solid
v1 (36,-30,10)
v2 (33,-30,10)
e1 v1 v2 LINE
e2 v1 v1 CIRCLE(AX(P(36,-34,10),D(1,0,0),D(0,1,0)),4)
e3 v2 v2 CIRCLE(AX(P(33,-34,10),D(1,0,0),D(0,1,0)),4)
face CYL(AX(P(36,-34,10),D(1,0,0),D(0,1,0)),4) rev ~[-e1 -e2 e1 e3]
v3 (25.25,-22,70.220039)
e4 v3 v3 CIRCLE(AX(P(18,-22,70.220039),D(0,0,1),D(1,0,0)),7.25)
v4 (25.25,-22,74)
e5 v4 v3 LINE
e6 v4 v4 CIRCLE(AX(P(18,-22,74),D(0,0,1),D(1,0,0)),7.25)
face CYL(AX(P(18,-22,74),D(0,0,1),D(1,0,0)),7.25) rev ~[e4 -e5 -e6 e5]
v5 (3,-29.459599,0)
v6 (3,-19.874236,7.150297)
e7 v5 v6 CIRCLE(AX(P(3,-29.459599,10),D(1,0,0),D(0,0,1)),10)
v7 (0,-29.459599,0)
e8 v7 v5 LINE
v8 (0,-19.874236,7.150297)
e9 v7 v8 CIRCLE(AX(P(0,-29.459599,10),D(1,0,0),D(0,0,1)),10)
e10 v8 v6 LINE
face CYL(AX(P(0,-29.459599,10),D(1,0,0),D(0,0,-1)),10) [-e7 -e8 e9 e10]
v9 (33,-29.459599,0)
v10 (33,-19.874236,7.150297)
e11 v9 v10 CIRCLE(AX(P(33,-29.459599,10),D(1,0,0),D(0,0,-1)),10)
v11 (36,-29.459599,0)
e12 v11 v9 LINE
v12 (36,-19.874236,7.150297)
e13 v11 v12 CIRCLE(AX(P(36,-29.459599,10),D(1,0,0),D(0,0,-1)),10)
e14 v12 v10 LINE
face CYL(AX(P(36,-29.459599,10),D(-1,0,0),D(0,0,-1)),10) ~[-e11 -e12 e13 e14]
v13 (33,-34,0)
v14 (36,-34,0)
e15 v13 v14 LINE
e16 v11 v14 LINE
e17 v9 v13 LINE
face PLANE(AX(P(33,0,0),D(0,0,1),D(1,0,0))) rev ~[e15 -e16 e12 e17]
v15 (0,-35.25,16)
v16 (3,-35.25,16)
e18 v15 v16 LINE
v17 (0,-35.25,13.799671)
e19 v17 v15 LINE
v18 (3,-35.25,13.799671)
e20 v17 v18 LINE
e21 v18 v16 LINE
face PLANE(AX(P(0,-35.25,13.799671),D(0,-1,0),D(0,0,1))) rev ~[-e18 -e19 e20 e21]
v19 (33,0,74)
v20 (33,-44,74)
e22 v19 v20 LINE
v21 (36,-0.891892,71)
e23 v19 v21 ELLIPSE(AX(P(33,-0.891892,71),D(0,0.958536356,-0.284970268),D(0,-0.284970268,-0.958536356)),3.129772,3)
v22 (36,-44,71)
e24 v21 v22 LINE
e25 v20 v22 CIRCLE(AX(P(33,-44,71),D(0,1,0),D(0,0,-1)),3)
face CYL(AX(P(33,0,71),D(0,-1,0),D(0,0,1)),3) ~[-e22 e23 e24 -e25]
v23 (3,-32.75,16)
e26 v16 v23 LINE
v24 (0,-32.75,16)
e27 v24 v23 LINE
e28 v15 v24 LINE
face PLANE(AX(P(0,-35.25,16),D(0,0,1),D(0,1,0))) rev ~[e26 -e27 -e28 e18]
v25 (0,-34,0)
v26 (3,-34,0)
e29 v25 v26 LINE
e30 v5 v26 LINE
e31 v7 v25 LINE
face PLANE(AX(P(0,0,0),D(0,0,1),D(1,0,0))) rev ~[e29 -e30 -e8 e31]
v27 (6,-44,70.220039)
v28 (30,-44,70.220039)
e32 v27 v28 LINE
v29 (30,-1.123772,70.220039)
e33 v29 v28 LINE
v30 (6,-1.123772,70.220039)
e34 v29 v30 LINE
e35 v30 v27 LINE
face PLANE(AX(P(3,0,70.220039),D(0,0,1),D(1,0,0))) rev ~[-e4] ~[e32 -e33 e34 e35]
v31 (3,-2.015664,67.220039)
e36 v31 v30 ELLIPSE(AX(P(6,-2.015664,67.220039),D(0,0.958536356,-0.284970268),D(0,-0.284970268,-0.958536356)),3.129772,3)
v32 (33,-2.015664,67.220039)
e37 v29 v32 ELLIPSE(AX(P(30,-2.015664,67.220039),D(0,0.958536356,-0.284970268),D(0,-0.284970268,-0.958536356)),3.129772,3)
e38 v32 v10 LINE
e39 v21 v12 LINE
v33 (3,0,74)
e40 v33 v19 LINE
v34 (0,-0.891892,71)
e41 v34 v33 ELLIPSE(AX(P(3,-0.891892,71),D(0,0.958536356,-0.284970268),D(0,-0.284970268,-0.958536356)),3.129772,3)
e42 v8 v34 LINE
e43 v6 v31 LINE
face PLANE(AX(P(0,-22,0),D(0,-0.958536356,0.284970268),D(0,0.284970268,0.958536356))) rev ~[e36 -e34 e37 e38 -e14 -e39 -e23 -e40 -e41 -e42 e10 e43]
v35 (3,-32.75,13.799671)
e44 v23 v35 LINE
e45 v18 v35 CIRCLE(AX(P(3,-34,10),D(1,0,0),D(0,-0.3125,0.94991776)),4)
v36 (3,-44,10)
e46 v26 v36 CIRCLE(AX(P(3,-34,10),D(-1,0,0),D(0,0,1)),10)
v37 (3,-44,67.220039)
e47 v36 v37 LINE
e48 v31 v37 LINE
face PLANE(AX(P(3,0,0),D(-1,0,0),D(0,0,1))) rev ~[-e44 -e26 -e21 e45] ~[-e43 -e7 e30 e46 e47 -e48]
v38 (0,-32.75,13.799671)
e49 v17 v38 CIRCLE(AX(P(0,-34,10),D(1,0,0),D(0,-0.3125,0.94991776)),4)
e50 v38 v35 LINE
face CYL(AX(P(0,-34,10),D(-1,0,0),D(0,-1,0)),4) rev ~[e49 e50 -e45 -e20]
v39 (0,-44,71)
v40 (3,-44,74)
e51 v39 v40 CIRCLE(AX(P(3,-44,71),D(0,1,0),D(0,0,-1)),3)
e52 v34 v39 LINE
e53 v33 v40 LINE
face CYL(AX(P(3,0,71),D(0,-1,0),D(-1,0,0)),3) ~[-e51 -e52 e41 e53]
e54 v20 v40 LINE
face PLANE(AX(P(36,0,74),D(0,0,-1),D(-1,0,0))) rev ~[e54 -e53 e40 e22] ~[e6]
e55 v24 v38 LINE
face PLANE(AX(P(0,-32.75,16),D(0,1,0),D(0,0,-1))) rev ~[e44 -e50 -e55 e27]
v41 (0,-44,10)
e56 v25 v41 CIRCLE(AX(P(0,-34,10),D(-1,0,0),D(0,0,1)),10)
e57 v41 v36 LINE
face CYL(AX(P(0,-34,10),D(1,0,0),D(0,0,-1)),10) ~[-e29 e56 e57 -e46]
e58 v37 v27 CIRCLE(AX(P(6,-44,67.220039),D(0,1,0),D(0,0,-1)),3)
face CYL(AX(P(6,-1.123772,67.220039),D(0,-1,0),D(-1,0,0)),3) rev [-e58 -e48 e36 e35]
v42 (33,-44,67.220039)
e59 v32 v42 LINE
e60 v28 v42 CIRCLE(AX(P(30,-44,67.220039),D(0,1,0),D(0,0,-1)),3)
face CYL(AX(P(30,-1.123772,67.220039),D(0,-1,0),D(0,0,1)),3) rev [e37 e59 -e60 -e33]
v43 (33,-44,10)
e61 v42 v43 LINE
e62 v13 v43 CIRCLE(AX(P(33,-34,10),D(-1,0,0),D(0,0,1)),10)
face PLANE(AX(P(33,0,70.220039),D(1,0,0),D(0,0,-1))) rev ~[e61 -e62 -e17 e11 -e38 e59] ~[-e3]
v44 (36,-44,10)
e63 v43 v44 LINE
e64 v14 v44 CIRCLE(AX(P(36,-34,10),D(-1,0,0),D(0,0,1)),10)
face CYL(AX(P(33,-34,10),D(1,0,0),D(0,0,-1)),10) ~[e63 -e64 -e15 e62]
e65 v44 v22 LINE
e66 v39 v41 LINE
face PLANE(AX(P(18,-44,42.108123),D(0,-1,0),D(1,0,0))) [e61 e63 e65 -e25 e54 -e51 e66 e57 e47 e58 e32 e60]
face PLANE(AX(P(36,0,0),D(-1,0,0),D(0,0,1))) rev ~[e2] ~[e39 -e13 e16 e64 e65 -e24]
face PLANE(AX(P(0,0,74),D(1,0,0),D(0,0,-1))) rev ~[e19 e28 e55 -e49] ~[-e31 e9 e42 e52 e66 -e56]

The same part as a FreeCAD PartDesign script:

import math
import FreeCAD as App
import Part
import Sketcher

V = App.Vector
Q = App.Units.Quantity


def edges_at(feature, points):
    """Names of the edges that pass closest to the given points."""
    edges = feature.Shape.Edges
    near = lambda p: min(range(len(edges)), key=lambda i: edges[i].distToShape(Part.Vertex(*p))[0])
    return sorted({f"Edge{near(p) + 1}" for p in points})

doc = App.newDocument("Part")
body = doc.addObject("PartDesign::Body", "Body")

# Sketch on XZ plane
sketch1 = body.newObject("Sketcher::SketchObject", "Sketch")
sketch1.AttachmentSupport = (doc.getObject("XZ_Plane"), [""])
sketch1.MapMode = "FlatFace"
sketch1.addGeometry(Part.LineSegment(V(0, 74, 0), V(0, 0, 0)), False)
sketch1.addGeometry(Part.LineSegment(V(0, 0, 0), V(3, 0, 0)), False)
sketch1.addGeometry(Part.LineSegment(V(3, 0, 0), V(3, 70.2, 0)), False)
sketch1.addGeometry(Part.LineSegment(V(3, 70.2, 0), V(33, 70.2, 0)), False)
sketch1.addGeometry(Part.LineSegment(V(33, 70.2, 0), V(33, 0, 0)), False)
sketch1.addGeometry(Part.LineSegment(V(33, 0, 0), V(36, 0, 0)), False)
sketch1.addGeometry(Part.LineSegment(V(36, 0, 0), V(36, 74, 0)), False)
sketch1.addGeometry(Part.LineSegment(V(36, 74, 0), V(0, 74, 0)), False)
sketch1.addConstraint(Sketcher.Constraint("Coincident", 0, 2, 1, 1))
sketch1.addConstraint(Sketcher.Constraint("Coincident", 1, 2, 2, 1))
sketch1.addConstraint(Sketcher.Constraint("Coincident", 2, 2, 3, 1))
sketch1.addConstraint(Sketcher.Constraint("Coincident", 3, 2, 4, 1))
sketch1.addConstraint(Sketcher.Constraint("Coincident", 4, 2, 5, 1))
sketch1.addConstraint(Sketcher.Constraint("Coincident", 5, 2, 6, 1))
sketch1.addConstraint(Sketcher.Constraint("Coincident", 6, 2, 7, 1))
sketch1.addConstraint(Sketcher.Constraint("Coincident", 7, 2, 0, 1))
sketch1.addConstraint(Sketcher.Constraint("Vertical", 0))
sketch1.addConstraint(Sketcher.Constraint("Horizontal", 1))
sketch1.addConstraint(Sketcher.Constraint("Vertical", 2))
sketch1.addConstraint(Sketcher.Constraint("Horizontal", 3))
sketch1.addConstraint(Sketcher.Constraint("Vertical", 4))
sketch1.addConstraint(Sketcher.Constraint("Horizontal", 5))
sketch1.addConstraint(Sketcher.Constraint("Vertical", 6))
sketch1.addConstraint(Sketcher.Constraint("Horizontal", 7))
sketch1.addConstraint(Sketcher.Constraint("Coincident", 0, 2, -1, 1))
sketch1.addConstraint(Sketcher.Constraint("PointOnObject", 4, 2, -1))
sketch1.addConstraint(Sketcher.Constraint("Equal", 1, 5))
sketch1.addConstraint(Sketcher.Constraint("DistanceX", 1, 1, 1, 2, Q("3 mm")))
sketch1.addConstraint(Sketcher.Constraint("DistanceX", 3, 1, 3, 2, Q("30 mm")))
sketch1.addConstraint(Sketcher.Constraint("DistanceY", 0, 2, 0, 1, Q("74 mm")))
sketch1.addConstraint(Sketcher.Constraint("DistanceY", 2, 1, 2, 2, Q("70.220039 mm")))
pad1 = body.newObject("PartDesign::Pad", "Pad")
pad1.Profile = sketch1
pad1.Length = 44

# Sketch on YZ plane
sketch2 = body.newObject("Sketcher::SketchObject", "Sketch001")
sketch2.AttachmentSupport = (doc.getObject("YZ_Plane"), [""])
sketch2.MapMode = "FlatFace"
sketch2.AttachmentOffset = App.Placement(V(0, 0, 36), App.Rotation())
sketch2.addGeometry(Part.Circle(V(-34, 10, 0), V(0, 0, 1), 4), False)
sketch2.addConstraint(Sketcher.Constraint("Diameter", 0, Q("8 mm")))
sketch2.addConstraint(Sketcher.Constraint("DistanceX", 0, 3, -1, 1, Q("34 mm")))
sketch2.addConstraint(Sketcher.Constraint("DistanceY", -1, 1, 0, 3, Q("10 mm")))
pocket1 = body.newObject("PartDesign::Pocket", "Pocket")
pocket1.Profile = sketch2
pocket1.Length = 25

# Sketch on YZ plane
sketch3 = body.newObject("Sketcher::SketchObject", "Sketch002")
sketch3.AttachmentSupport = (doc.getObject("YZ_Plane"), [""])
sketch3.MapMode = "FlatFace"
sketch3.AttachmentOffset = App.Placement(V(0, 0, 36), App.Rotation())
sketch3.addGeometry(Part.LineSegment(V(0, 74, 0), V(-22, 0, 0)), False)
sketch3.addGeometry(Part.LineSegment(V(-22, 0, 0), V(0, 0, 0)), False)
sketch3.addGeometry(Part.LineSegment(V(0, 0, 0), V(0, 74, 0)), False)
sketch3.addConstraint(Sketcher.Constraint("Coincident", 0, 2, 1, 1))
sketch3.addConstraint(Sketcher.Constraint("Coincident", 1, 2, 2, 1))
sketch3.addConstraint(Sketcher.Constraint("Coincident", 2, 2, 0, 1))
sketch3.addConstraint(Sketcher.Constraint("Horizontal", 1))
sketch3.addConstraint(Sketcher.Constraint("Vertical", 2))
sketch3.addConstraint(Sketcher.Constraint("Coincident", 1, 2, -1, 1))
sketch3.addConstraint(Sketcher.Constraint("DistanceX", 1, 1, 1, 2, Q("22 mm")))
sketch3.addConstraint(Sketcher.Constraint("DistanceY", 2, 1, 2, 2, Q("74 mm")))
pocket2 = body.newObject("PartDesign::Pocket", "Pocket001")
pocket2.Profile = sketch3
pocket2.Length = 25

# Sketch on YZ plane
sketch4 = body.newObject("Sketcher::SketchObject", "Sketch003")
sketch4.AttachmentSupport = (doc.getObject("YZ_Plane"), [""])
sketch4.MapMode = "FlatFace"
sketch4.addGeometry(Part.LineSegment(V(-22, 0, 0), V(0, 74, 0)), False)
sketch4.addGeometry(Part.LineSegment(V(0, 74, 0), V(0, 0, 0)), False)
sketch4.addGeometry(Part.LineSegment(V(0, 0, 0), V(-22, 0, 0)), False)
sketch4.addConstraint(Sketcher.Constraint("Coincident", 0, 2, 1, 1))
sketch4.addConstraint(Sketcher.Constraint("Coincident", 1, 2, 2, 1))
sketch4.addConstraint(Sketcher.Constraint("Coincident", 2, 2, 0, 1))
sketch4.addConstraint(Sketcher.Constraint("Vertical", 1))
sketch4.addConstraint(Sketcher.Constraint("Horizontal", 2))
sketch4.addConstraint(Sketcher.Constraint("Coincident", 1, 2, -1, 1))
sketch4.addConstraint(Sketcher.Constraint("DistanceX", 2, 2, 2, 1, Q("22 mm")))
sketch4.addConstraint(Sketcher.Constraint("DistanceY", 1, 2, 1, 1, Q("74 mm")))
pocket3 = body.newObject("PartDesign::Pocket", "Pocket002")
pocket3.Profile = sketch4
pocket3.Length = 25
pocket3.Reversed = True

# Sketch on YZ plane
sketch5 = body.newObject("Sketcher::SketchObject", "Sketch004")
sketch5.AttachmentSupport = (doc.getObject("YZ_Plane"), [""])
sketch5.MapMode = "FlatFace"
sketch5.addGeometry(Part.Circle(V(-34, 10, 0), V(0, 0, 1), 4), False)
sketch5.addConstraint(Sketcher.Constraint("Diameter", 0, Q("8 mm")))
sketch5.addConstraint(Sketcher.Constraint("DistanceX", 0, 3, -1, 1, Q("34 mm")))
sketch5.addConstraint(Sketcher.Constraint("DistanceY", -1, 1, 0, 3, Q("10 mm")))
pocket4 = body.newObject("PartDesign::Pocket", "Pocket003")
pocket4.Profile = sketch5
pocket4.Length = 25
pocket4.Reversed = True
doc.recompute()

fillet = body.newObject("PartDesign::Fillet", "Fillet")
fillet.Base = (pocket4, edges_at(pocket4, [
    (36, -22, 74),
    (0, -22, 74),
    (33, -22.562, 70.22),
    (3, -22.562, 70.22),
]))
fillet.Radius = 3

# Sketch on YZ plane
sketch6 = body.newObject("Sketcher::SketchObject", "Sketch005")
sketch6.AttachmentSupport = (doc.getObject("YZ_Plane"), [""])
sketch6.MapMode = "FlatFace"
sketch6.addGeometry(Part.LineSegment(V(-32.8, 16, 0), V(-32.8, 13.8, 0)), False)
sketch6.addGeometry(Part.ArcOfCircle(Part.Circle(V(-34, 10, 0), V(0, 0, 1), 4), math.radians(72), math.radians(108)), False)
sketch6.addGeometry(Part.LineSegment(V(-35.2, 13.8, 0), V(-35.2, 16, 0)), False)
sketch6.addGeometry(Part.LineSegment(V(-35.2, 16, 0), V(-32.8, 16, 0)), False)
sketch6.addConstraint(Sketcher.Constraint("Coincident", 0, 2, 1, 1))
sketch6.addConstraint(Sketcher.Constraint("Coincident", 1, 2, 2, 1))
sketch6.addConstraint(Sketcher.Constraint("Coincident", 2, 2, 3, 1))
sketch6.addConstraint(Sketcher.Constraint("Coincident", 3, 2, 0, 1))
sketch6.addConstraint(Sketcher.Constraint("Vertical", 0))
sketch6.addConstraint(Sketcher.Constraint("Vertical", 2))
sketch6.addConstraint(Sketcher.Constraint("Horizontal", 3))
sketch6.addConstraint(Sketcher.Constraint("Horizontal", 0, 2, 1, 2))
sketch6.addConstraint(Sketcher.Constraint("Radius", 1, Q("4 mm")))
sketch6.addConstraint(Sketcher.Constraint("DistanceX", 3, 1, 3, 2, Q("2.5 mm")))
sketch6.addConstraint(Sketcher.Constraint("DistanceX", 1, 3, -1, 1, Q("34 mm")))
sketch6.addConstraint(Sketcher.Constraint("DistanceY", -1, 1, 1, 3, Q("10 mm")))
sketch6.addConstraint(Sketcher.Constraint("DistanceY", -1, 1, 2, 2, Q("16 mm")))
pocket5 = body.newObject("PartDesign::Pocket", "Pocket004")
pocket5.Profile = sketch6
pocket5.Length = 25
pocket5.Reversed = True
doc.recompute()

fillet2 = body.newObject("PartDesign::Fillet", "Fillet001")
fillet2.Base = (pocket5, edges_at(pocket5, [
    (1.5, -22, 0),
    (1.5, -44, 0),
    (34.5, -44, 0),
    (34.5, -22, 0),
]))
fillet2.Radius = 10

# Sketch on XY plane
sketch7 = body.newObject("Sketcher::SketchObject", "Sketch006")
sketch7.AttachmentSupport = (doc.getObject("XY_Plane"), [""])
sketch7.MapMode = "FlatFace"
sketch7.AttachmentOffset = App.Placement(V(0, 0, 74), App.Rotation())
sketch7.addGeometry(Part.Circle(V(18, -22, 0), V(0, 0, 1), 7), False)
sketch7.addConstraint(Sketcher.Constraint("Diameter", 0, Q("14.5 mm")))
sketch7.addConstraint(Sketcher.Constraint("DistanceX", -1, 1, 0, 3, Q("18 mm")))
sketch7.addConstraint(Sketcher.Constraint("DistanceY", 0, 3, -1, 1, Q("22 mm")))
pocket6 = body.newObject("PartDesign::Pocket", "Pocket005")
pocket6.Profile = sketch7
pocket6.Length = 25

doc.recompute()
